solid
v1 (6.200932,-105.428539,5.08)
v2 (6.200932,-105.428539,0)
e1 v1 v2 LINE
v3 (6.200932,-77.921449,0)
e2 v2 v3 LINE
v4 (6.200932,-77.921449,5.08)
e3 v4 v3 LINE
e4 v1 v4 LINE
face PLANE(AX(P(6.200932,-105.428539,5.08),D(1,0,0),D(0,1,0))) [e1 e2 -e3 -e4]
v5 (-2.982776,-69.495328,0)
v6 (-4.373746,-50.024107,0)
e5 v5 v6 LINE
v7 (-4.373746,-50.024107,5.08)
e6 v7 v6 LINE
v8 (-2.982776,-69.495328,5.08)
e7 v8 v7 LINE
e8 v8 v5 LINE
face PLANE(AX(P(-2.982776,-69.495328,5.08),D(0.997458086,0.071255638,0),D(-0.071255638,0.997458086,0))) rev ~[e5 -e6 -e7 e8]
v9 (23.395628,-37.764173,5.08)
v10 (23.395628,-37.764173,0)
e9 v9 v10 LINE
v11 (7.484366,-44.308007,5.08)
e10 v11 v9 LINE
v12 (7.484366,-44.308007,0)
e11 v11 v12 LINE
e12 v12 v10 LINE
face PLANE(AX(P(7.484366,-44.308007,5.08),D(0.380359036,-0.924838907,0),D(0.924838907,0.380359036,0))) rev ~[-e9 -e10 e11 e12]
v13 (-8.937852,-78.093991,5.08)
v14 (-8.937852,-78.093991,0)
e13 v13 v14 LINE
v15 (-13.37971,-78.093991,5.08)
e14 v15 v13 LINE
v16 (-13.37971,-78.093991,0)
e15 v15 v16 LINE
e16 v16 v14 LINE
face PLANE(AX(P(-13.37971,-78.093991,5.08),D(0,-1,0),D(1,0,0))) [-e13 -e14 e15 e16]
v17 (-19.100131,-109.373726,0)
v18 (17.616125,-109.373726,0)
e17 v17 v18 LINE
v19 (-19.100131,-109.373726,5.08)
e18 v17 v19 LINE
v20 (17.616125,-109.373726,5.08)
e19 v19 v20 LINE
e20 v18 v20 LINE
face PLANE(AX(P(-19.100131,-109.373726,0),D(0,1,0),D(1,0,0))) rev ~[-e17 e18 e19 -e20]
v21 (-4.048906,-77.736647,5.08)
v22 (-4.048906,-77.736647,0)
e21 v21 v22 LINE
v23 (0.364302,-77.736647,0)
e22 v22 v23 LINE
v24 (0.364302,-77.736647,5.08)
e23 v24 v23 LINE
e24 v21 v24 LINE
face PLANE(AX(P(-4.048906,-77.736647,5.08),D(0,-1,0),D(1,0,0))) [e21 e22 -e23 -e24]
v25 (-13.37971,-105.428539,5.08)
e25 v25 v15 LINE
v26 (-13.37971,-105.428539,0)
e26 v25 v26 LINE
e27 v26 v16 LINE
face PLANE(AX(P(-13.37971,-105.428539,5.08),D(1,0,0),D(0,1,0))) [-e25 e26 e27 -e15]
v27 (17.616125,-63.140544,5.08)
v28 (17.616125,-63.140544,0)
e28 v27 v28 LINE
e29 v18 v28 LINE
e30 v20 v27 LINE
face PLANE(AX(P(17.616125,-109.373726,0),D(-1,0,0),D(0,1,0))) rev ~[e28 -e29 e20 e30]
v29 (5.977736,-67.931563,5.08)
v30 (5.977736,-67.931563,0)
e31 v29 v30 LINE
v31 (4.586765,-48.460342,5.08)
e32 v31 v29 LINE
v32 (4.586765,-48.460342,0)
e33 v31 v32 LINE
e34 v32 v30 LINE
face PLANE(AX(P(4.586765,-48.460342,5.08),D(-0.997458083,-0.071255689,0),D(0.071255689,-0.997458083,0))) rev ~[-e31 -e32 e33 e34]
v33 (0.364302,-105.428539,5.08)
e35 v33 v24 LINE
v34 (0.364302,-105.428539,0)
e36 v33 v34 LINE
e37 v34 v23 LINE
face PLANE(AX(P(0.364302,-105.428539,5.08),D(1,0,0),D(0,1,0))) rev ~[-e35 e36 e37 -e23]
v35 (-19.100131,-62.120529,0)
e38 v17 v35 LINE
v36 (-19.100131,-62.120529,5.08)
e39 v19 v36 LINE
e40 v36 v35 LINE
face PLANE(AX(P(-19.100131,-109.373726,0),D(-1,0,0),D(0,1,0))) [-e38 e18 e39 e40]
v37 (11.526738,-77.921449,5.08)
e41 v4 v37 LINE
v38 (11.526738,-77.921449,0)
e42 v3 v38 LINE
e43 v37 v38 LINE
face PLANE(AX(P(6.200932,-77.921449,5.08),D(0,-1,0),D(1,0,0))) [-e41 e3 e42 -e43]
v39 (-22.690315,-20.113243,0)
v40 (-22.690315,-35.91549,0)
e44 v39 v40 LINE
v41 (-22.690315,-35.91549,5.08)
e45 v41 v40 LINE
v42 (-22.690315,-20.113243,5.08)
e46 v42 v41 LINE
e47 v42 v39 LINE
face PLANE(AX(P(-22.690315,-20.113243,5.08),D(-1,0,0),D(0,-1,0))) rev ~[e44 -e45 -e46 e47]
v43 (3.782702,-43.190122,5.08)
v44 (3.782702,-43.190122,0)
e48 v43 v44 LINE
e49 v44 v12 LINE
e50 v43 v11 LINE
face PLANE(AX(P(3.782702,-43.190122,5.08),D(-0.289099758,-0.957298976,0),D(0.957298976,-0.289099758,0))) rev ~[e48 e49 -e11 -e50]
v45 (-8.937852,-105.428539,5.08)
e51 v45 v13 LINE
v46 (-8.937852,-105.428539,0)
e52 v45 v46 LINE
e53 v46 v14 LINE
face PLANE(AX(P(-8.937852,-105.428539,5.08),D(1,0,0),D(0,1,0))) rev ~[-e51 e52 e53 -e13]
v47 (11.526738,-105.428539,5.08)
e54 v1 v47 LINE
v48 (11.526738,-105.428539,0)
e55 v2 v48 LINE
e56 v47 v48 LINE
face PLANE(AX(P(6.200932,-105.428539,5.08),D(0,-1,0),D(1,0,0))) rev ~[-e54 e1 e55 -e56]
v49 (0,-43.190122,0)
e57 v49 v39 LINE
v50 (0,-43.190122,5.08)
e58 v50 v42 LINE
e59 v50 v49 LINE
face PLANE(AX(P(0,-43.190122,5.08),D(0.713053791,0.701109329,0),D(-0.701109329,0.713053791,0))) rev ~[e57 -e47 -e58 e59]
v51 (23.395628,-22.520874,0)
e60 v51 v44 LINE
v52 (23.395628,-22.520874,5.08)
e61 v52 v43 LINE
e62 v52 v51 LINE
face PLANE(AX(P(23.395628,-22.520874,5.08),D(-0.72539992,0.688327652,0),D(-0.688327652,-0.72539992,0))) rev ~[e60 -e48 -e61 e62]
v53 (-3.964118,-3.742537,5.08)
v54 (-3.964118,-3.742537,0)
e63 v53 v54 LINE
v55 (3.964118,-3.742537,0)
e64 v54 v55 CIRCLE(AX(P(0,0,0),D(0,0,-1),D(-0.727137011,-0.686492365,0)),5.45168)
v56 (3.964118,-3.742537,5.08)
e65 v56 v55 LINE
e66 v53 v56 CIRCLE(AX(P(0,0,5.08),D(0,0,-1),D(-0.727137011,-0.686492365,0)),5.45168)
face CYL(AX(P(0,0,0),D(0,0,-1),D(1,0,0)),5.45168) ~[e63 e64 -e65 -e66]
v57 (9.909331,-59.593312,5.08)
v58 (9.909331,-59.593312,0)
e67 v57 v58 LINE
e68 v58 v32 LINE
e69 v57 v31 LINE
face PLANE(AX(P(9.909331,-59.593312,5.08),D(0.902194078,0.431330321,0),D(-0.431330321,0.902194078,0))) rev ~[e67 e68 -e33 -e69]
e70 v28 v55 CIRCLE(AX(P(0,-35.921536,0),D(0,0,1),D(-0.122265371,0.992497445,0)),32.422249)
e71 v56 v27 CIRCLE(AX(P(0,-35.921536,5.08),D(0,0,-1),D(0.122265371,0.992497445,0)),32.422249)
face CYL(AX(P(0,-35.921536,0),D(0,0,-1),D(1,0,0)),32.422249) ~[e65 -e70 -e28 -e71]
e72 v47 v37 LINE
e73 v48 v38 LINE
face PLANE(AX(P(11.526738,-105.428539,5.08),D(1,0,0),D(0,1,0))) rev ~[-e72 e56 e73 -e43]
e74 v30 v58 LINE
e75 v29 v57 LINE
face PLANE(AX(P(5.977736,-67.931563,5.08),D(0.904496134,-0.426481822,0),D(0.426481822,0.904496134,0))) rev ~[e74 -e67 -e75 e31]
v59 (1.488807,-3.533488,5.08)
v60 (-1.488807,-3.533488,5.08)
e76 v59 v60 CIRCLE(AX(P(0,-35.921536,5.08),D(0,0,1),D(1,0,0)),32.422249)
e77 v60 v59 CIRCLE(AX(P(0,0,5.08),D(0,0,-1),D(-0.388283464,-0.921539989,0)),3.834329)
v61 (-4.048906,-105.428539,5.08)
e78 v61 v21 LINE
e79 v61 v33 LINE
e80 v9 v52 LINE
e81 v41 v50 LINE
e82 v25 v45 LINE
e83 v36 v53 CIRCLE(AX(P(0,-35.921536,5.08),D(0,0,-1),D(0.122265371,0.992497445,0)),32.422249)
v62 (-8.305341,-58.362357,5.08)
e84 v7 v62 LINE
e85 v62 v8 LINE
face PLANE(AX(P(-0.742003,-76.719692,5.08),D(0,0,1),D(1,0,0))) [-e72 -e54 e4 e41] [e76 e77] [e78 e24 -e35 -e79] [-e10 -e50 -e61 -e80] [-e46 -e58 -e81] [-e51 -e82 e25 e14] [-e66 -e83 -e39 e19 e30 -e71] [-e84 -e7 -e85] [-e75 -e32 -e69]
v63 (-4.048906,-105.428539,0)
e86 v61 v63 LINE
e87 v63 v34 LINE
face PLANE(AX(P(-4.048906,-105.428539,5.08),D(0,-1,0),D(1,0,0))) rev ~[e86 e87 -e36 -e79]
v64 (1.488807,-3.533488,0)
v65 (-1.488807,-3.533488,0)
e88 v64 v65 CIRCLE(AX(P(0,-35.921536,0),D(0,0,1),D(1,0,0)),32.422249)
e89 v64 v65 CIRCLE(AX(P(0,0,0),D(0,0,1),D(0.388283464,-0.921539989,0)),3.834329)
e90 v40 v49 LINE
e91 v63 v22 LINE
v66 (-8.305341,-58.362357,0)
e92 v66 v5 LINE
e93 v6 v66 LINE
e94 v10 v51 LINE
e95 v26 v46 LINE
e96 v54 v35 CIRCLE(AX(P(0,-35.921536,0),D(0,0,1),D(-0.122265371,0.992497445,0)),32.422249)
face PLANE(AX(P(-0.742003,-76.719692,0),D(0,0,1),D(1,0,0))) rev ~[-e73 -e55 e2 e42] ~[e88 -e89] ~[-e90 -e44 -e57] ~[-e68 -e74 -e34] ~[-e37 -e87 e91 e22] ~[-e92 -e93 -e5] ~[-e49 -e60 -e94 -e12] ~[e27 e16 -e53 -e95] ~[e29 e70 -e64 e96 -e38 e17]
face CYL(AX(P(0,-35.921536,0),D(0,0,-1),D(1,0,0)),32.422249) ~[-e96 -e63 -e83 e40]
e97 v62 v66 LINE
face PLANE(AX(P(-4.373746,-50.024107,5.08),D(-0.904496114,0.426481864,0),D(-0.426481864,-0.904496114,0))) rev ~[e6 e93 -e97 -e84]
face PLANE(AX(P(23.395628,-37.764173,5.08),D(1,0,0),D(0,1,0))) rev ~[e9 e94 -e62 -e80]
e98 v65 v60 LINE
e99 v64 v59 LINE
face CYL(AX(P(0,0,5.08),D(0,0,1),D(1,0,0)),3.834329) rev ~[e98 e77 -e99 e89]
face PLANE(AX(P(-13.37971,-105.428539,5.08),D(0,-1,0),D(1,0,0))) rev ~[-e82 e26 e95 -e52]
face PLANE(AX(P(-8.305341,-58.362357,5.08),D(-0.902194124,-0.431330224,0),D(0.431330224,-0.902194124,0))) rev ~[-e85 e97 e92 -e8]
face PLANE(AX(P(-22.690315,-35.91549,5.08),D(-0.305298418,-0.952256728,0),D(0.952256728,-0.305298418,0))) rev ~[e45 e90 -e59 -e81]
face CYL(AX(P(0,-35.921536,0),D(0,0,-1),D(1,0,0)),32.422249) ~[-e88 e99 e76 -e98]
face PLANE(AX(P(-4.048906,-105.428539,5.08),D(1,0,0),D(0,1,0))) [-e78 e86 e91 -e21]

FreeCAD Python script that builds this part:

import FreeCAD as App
import Part
import Sketcher
Q = App.Units.Quantity

doc = App.newDocument("Part")
body = doc.addObject("PartDesign::Body", "Body")

# Sketch on XY plane
sketch1 = doc.addObject("Sketcher::SketchObject", "Sketch")
body.addObject(sketch1)
sketch1.AttachmentSupport = (doc.XY_Plane, [""])
sketch1.MapMode = "FlatFace"
sketch1.addGeometry(Part.Circle(App.Vector(0, 0, 0), App.Vector(0, 0, 1), 5), False)
sketch1.addConstraint(Sketcher.Constraint("Coincident", 0, 3, -1, 1))
sketch1.addConstraint(Sketcher.Constraint("Diameter", 0, 10.90336))
pad1 = doc.addObject("PartDesign::Pad", "Pad")
body.addObject(pad1)
pad1.Profile = sketch1
pad1.Length = Q("0.2 in")

# Sketch on XY plane
sketch2 = doc.addObject("Sketcher::SketchObject", "Sketch001")
body.addObject(sketch2)
sketch2.AttachmentSupport = (doc.XY_Plane, [""])
sketch2.MapMode = "FlatFace"
sketch2.AttachmentOffset = App.Placement(App.Vector(0, 0, 0.2 * 25.4), App.Rotation())
sketch2.addGeometry(Part.Circle(App.Vector(0, 0, 0), App.Vector(0, 0, 1), 3.8), False)
sketch2.addConstraint(Sketcher.Constraint("Coincident", 0, 3, -1, 1))
sketch2.addConstraint(Sketcher.Constraint("Diameter", 0, 7.668658))
pocket1 = doc.addObject("PartDesign::Pocket", "Pocket")
body.addObject(pocket1)
pocket1.Profile = sketch2
pocket1.Length = Q("1 in")

# Sketch on XY plane
sketch3 = doc.addObject("Sketcher::SketchObject", "Sketch002")
body.addObject(sketch3)
sketch3.AttachmentSupport = (doc.XY_Plane, [""])
sketch3.MapMode = "FlatFace"
sketch3.addGeometry(Part.Circle(App.Vector(0, -36, 0), App.Vector(0, 0, 1), 32), False)
sketch3.addConstraint(Sketcher.Constraint("PointOnObject", 0, 3, -2))
sketch3.addConstraint(Sketcher.Constraint("Diameter", 0, 64.844498))
sketch3.addConstraint(Sketcher.Constraint("DistanceY", 0, 3, -1, 1, 35.921536))
pad2 = doc.addObject("PartDesign::Pad", "Pad001")
body.addObject(pad2)
pad2.Profile = sketch3
pad2.Length = Q("0.2 in")

# Sketch on XY plane
sketch4 = doc.addObject("Sketcher::SketchObject", "Sketch003")
body.addObject(sketch4)
sketch4.AttachmentSupport = (doc.XY_Plane, [""])
sketch4.MapMode = "FlatFace"
sketch4.addGeometry(Part.LineSegment(App.Vector(-19, -44, 0), App.Vector(-19, -109, 0)), False)
sketch4.addGeometry(Part.LineSegment(App.Vector(-19, -109, 0), App.Vector(18, -109, 0)), False)
sketch4.addGeometry(Part.LineSegment(App.Vector(18, -109, 0), App.Vector(18, -44, 0)), False)
sketch4.addGeometry(Part.LineSegment(App.Vector(18, -44, 0), App.Vector(-19, -44, 0)), False)
sketch4.addConstraint(Sketcher.Constraint("Coincident", 0, 2, 1, 1))
sketch4.addConstraint(Sketcher.Constraint("Coincident", 1, 2, 2, 1))
sketch4.addConstraint(Sketcher.Constraint("Coincident", 2, 2, 3, 1))
sketch4.addConstraint(Sketcher.Constraint("Coincident", 3, 2, 0, 1))
sketch4.addConstraint(Sketcher.Constraint("Vertical", 0))
sketch4.addConstraint(Sketcher.Constraint("Horizontal", 1))
sketch4.addConstraint(Sketcher.Constraint("Vertical", 2))
sketch4.addConstraint(Sketcher.Constraint("Horizontal", 3))
sketch4.addConstraint(Sketcher.Constraint("DistanceY", 0, 2, 0, 1, 65.308068))
sketch4.addConstraint(Sketcher.Constraint("DistanceX", 1, 1, 1, 2, 36.716256))
sketch4.addConstraint(Sketcher.Constraint("DistanceX", 0, 2, -1, 1, 19.100131))
sketch4.addConstraint(Sketcher.Constraint("DistanceY", 0, 2, -1, 1, 109.373726))
pad3 = doc.addObject("PartDesign::Pad", "Pad002")
body.addObject(pad3)
pad3.Profile = sketch4
pad3.Length = Q("0.2 in")

# Sketch on XY plane
sketch5 = doc.addObject("Sketcher::SketchObject", "Sketch004")
body.addObject(sketch5)
sketch5.AttachmentSupport = (doc.XY_Plane, [""])
sketch5.MapMode = "FlatFace"
sketch5.AttachmentOffset = App.Placement(App.Vector(0, 0, 0.2 * 25.4), App.Rotation())
sketch5.addGeometry(Part.LineSegment(App.Vector(-13.4, -78.1, 0), App.Vector(-13.4, -105.4, 0)), False)
sketch5.addGeometry(Part.LineSegment(App.Vector(-13.4, -105.4, 0), App.Vector(-8.9, -105.4, 0)), False)
sketch5.addGeometry(Part.LineSegment(App.Vector(-8.9, -105.4, 0), App.Vector(-8.9, -78.1, 0)), False)
sketch5.addGeometry(Part.LineSegment(App.Vector(-8.9, -78.1, 0), App.Vector(-13.4, -78.1, 0)), False)
sketch5.addGeometry(Part.LineSegment(App.Vector(-4, -77.7, 0), App.Vector(-4, -105.4, 0)), False)
sketch5.addGeometry(Part.LineSegment(App.Vector(-4, -105.4, 0), App.Vector(0.4, -105.4, 0)), False)
sketch5.addGeometry(Part.LineSegment(App.Vector(0.4, -105.4, 0), App.Vector(0.4, -77.7, 0)), False)
sketch5.addGeometry(Part.LineSegment(App.Vector(0.4, -77.7, 0), App.Vector(-4, -77.7, 0)), False)
sketch5.addGeometry(Part.LineSegment(App.Vector(6.2, -77.9, 0), App.Vector(6.2, -105.4, 0)), False)
sketch5.addGeometry(Part.LineSegment(App.Vector(6.2, -105.4, 0), App.Vector(11.5, -105.4, 0)), False)
sketch5.addGeometry(Part.LineSegment(App.Vector(11.5, -105.4, 0), App.Vector(11.5, -77.9, 0)), False)
sketch5.addGeometry(Part.LineSegment(App.Vector(11.5, -77.9, 0), App.Vector(6.2, -77.9, 0)), False)
sketch5.addConstraint(Sketcher.Constraint("Coincident", 0, 2, 1, 1))
sketch5.addConstraint(Sketcher.Constraint("Coincident", 1, 2, 2, 1))
sketch5.addConstraint(Sketcher.Constraint("Coincident", 2, 2, 3, 1))
sketch5.addConstraint(Sketcher.Constraint("Coincident", 3, 2, 0, 1))
sketch5.addConstraint(Sketcher.Constraint("Coincident", 4, 2, 5, 1))
sketch5.addConstraint(Sketcher.Constraint("Coincident", 5, 2, 6, 1))
sketch5.addConstraint(Sketcher.Constraint("Coincident", 6, 2, 7, 1))
sketch5.addConstraint(Sketcher.Constraint("Coincident", 7, 2, 4, 1))
sketch5.addConstraint(Sketcher.Constraint("Coincident", 8, 2, 9, 1))
sketch5.addConstraint(Sketcher.Constraint("Coincident", 9, 2, 10, 1))
sketch5.addConstraint(Sketcher.Constraint("Coincident", 10, 2, 11, 1))
sketch5.addConstraint(Sketcher.Constraint("Coincident", 11, 2, 8, 1))
sketch5.addConstraint(Sketcher.Constraint("Vertical", 0))
sketch5.addConstraint(Sketcher.Constraint("Horizontal", 1))
sketch5.addConstraint(Sketcher.Constraint("Vertical", 2))
sketch5.addConstraint(Sketcher.Constraint("Horizontal", 3))
sketch5.addConstraint(Sketcher.Constraint("Vertical", 4))
sketch5.addConstraint(Sketcher.Constraint("Horizontal", 5))
sketch5.addConstraint(Sketcher.Constraint("Vertical", 6))
sketch5.addConstraint(Sketcher.Constraint("Horizontal", 7))
sketch5.addConstraint(Sketcher.Constraint("Vertical", 8))
sketch5.addConstraint(Sketcher.Constraint("Horizontal", 9))
sketch5.addConstraint(Sketcher.Constraint("Vertical", 10))
sketch5.addConstraint(Sketcher.Constraint("Horizontal", 11))
sketch5.addConstraint(Sketcher.Constraint("Horizontal", 1, 2, 4, 2))
sketch5.addConstraint(Sketcher.Constraint("Horizontal", 5, 2, 8, 2))
sketch5.addConstraint(Sketcher.Constraint("DistanceX", 1, 1, 1, 2, 4.441859))
sketch5.addConstraint(Sketcher.Constraint("DistanceY", 8, 2, 8, 1, 27.507089))
sketch5.addConstraint(Sketcher.Constraint("DistanceX", -1, 1, 5, 2, 0.364302))
sketch5.addConstraint(Sketcher.Constraint("DistanceX", 5, 1, 5, 2, 4.413207))
sketch5.addConstraint(Sketcher.Constraint("DistanceX", 9, 1, 9, 2, 5.325806))
sketch5.addConstraint(Sketcher.Constraint("DistanceY", 0, 2, 0, 1, 27.334548))
sketch5.addConstraint(Sketcher.Constraint("DistanceY", 4, 2, 4, 1, 27.691893))
sketch5.addConstraint(Sketcher.Constraint("DistanceX", 0, 2, -1, 1, 13.37971))
sketch5.addConstraint(Sketcher.Constraint("DistanceY", 0, 2, -1, 1, 105.428539))
sketch5.addConstraint(Sketcher.Constraint("DistanceX", 5, 2, 8, 2, 5.836631))
pocket2 = doc.addObject("PartDesign::Pocket", "Pocket001")
body.addObject(pocket2)
pocket2.Profile = sketch5
pocket2.Length = Q("1 in")

# Sketch on XY plane
sketch6 = doc.addObject("Sketcher::SketchObject", "Sketch005")
body.addObject(sketch6)
sketch6.AttachmentSupport = (doc.XY_Plane, [""])
sketch6.MapMode = "FlatFace"
sketch6.AttachmentOffset = App.Placement(App.Vector(0, 0, 0.2 * 25.4), App.Rotation())
sketch6.addGeometry(Part.LineSegment(App.Vector(10, -60, 0), App.Vector(5, -48, 0)), False)
sketch6.addGeometry(Part.LineSegment(App.Vector(5, -48, 0), App.Vector(6, -68, 0)), False)
sketch6.addGeometry(Part.LineSegment(App.Vector(6, -68, 0), App.Vector(10, -60, 0)), False)
sketch6.addGeometry(Part.LineSegment(App.Vector(-8, -58, 0), App.Vector(-3, -69, 0)), False)
sketch6.addGeometry(Part.LineSegment(App.Vector(-3, -69, 0), App.Vector(-4, -50, 0)), False)
sketch6.addGeometry(Part.LineSegment(App.Vector(-4, -50, 0), App.Vector(-8, -58, 0)), False)
sketch6.addConstraint(Sketcher.Constraint("Coincident", 0, 2, 1, 1))
sketch6.addConstraint(Sketcher.Constraint("Coincident", 1, 2, 2, 1))
sketch6.addConstraint(Sketcher.Constraint("Coincident", 2, 2, 0, 1))
sketch6.addConstraint(Sketcher.Constraint("Coincident", 3, 2, 4, 1))
sketch6.addConstraint(Sketcher.Constraint("Coincident", 4, 2, 5, 1))
sketch6.addConstraint(Sketcher.Constraint("Coincident", 5, 2, 3, 1))
sketch6.addConstraint(Sketcher.Constraint("Parallel", 0, 3))
sketch6.addConstraint(Sketcher.Constraint("Parallel", 1, 4))
sketch6.addConstraint(Sketcher.Constraint("Parallel", 2, 5))
sketch6.addConstraint(Sketcher.Constraint("Equal", 0, 3))
sketch6.addConstraint(Sketcher.Constraint("Distance", 1, 19.520841))
sketch6.addConstraint(Sketcher.Constraint("Distance", 2, 9.21867))
sketch6.addConstraint(Sketcher.Constraint("DistanceY", 0, 2, -1, 1, 48.460342))
sketch6.addConstraint(Sketcher.Constraint("DistanceX", -1, 1, 2, 2, 9.909331))
sketch6.addConstraint(Sketcher.Constraint("DistanceY", 2, 2, -1, 1, 59.593312))
sketch6.addConstraint(Sketcher.Constraint("DistanceY", 3, 2, -1, 1, 69.495328))
sketch6.addConstraint(Sketcher.Constraint("DistanceX", 5, 2, -1, 1, 8.305341))
sketch6.addConstraint(Sketcher.Constraint("DistanceX", 0, 2, 1, 2, 1.390971))
pocket3 = doc.addObject("PartDesign::Pocket", "Pocket002")
body.addObject(pocket3)
pocket3.Profile = sketch6
pocket3.Length = Q("1 in")

# Sketch on XY plane
sketch7 = doc.addObject("Sketcher::SketchObject", "Sketch006")
body.addObject(sketch7)
sketch7.AttachmentSupport = (doc.XY_Plane, [""])
sketch7.MapMode = "FlatFace"
sketch7.AttachmentOffset = App.Placement(App.Vector(0, 0, 0.2 * 25.4), App.Rotation())
sketch7.addGeometry(Part.LineSegment(App.Vector(23.4, -22.5, 0), App.Vector(3.8, -43.2, 0)), False)
sketch7.addGeometry(Part.LineSegment(App.Vector(3.8, -43.2, 0), App.Vector(7.5, -44.3, 0)), False)
sketch7.addGeometry(Part.LineSegment(App.Vector(7.5, -44.3, 0), App.Vector(23.4, -37.8, 0)), False)
sketch7.addGeometry(Part.LineSegment(App.Vector(23.4, -37.8, 0), App.Vector(23.4, -22.5, 0)), False)
sketch7.addGeometry(Part.LineSegment(App.Vector(0, -43.2, 0), App.Vector(-22.7, -20.1, 0)), False)
sketch7.addGeometry(Part.LineSegment(App.Vector(-22.7, -20.1, 0), App.Vector(-22.7, -35.9, 0)), False)
sketch7.addGeometry(Part.LineSegment(App.Vector(-22.7, -35.9, 0), App.Vector(0, -43.2, 0)), False)
sketch7.addConstraint(Sketcher.Constraint("Coincident", 0, 2, 1, 1))
sketch7.addConstraint(Sketcher.Constraint("Coincident", 1, 2, 2, 1))
sketch7.addConstraint(Sketcher.Constraint("Coincident", 2, 2, 3, 1))
sketch7.addConstraint(Sketcher.Constraint("Coincident", 3, 2, 0, 1))
sketch7.addConstraint(Sketcher.Constraint("Coincident", 4, 2, 5, 1))
sketch7.addConstraint(Sketcher.Constraint("Coincident", 5, 2, 6, 1))
sketch7.addConstraint(Sketcher.Constraint("Coincident", 6, 2, 4, 1))
sketch7.addConstraint(Sketcher.Constraint("Vertical", 3))
sketch7.addConstraint(Sketcher.Constraint("Vertical", 5))
sketch7.addConstraint(Sketcher.Constraint("PointOnObject", 6, 2, -2))
sketch7.addConstraint(Sketcher.Constraint("Horizontal", 0, 2, 6, 2))
sketch7.addConstraint(Sketcher.Constraint("DistanceY", 3, 1, 3, 2, 15.243299))
sketch7.addConstraint(Sketcher.Constraint("DistanceX", -1, 1, 0, 2, 3.782702))
sketch7.addConstraint(Sketcher.Constraint("Distance", 0, 28.49359))
sketch7.addConstraint(Sketcher.Constraint("Distance", 1, 3.866779))
sketch7.addConstraint(Sketcher.Constraint("Distance", 2, 17.204361))
sketch7.addConstraint(Sketcher.Constraint("Distance", 6, 23.827939))
sketch7.addConstraint(Sketcher.Constraint("DistanceY", 5, 2, 5, 1, 15.802247))
sketch7.addConstraint(Sketcher.Constraint("DistanceY", 5, 2, -1, 1, 35.91549))
sketch7.addConstraint(Sketcher.Constraint("DistanceX", 1, 2, 2, 2, 15.911262))
sketch7.addConstraint(Sketcher.Constraint("DistanceY", 0, 2, 4, 2, 23.076879))
pocket4 = doc.addObject("PartDesign::Pocket", "Pocket003")
body.addObject(pocket4)
pocket4.Profile = sketch7
pocket4.Length = Q("1 in")

doc.recompute()
